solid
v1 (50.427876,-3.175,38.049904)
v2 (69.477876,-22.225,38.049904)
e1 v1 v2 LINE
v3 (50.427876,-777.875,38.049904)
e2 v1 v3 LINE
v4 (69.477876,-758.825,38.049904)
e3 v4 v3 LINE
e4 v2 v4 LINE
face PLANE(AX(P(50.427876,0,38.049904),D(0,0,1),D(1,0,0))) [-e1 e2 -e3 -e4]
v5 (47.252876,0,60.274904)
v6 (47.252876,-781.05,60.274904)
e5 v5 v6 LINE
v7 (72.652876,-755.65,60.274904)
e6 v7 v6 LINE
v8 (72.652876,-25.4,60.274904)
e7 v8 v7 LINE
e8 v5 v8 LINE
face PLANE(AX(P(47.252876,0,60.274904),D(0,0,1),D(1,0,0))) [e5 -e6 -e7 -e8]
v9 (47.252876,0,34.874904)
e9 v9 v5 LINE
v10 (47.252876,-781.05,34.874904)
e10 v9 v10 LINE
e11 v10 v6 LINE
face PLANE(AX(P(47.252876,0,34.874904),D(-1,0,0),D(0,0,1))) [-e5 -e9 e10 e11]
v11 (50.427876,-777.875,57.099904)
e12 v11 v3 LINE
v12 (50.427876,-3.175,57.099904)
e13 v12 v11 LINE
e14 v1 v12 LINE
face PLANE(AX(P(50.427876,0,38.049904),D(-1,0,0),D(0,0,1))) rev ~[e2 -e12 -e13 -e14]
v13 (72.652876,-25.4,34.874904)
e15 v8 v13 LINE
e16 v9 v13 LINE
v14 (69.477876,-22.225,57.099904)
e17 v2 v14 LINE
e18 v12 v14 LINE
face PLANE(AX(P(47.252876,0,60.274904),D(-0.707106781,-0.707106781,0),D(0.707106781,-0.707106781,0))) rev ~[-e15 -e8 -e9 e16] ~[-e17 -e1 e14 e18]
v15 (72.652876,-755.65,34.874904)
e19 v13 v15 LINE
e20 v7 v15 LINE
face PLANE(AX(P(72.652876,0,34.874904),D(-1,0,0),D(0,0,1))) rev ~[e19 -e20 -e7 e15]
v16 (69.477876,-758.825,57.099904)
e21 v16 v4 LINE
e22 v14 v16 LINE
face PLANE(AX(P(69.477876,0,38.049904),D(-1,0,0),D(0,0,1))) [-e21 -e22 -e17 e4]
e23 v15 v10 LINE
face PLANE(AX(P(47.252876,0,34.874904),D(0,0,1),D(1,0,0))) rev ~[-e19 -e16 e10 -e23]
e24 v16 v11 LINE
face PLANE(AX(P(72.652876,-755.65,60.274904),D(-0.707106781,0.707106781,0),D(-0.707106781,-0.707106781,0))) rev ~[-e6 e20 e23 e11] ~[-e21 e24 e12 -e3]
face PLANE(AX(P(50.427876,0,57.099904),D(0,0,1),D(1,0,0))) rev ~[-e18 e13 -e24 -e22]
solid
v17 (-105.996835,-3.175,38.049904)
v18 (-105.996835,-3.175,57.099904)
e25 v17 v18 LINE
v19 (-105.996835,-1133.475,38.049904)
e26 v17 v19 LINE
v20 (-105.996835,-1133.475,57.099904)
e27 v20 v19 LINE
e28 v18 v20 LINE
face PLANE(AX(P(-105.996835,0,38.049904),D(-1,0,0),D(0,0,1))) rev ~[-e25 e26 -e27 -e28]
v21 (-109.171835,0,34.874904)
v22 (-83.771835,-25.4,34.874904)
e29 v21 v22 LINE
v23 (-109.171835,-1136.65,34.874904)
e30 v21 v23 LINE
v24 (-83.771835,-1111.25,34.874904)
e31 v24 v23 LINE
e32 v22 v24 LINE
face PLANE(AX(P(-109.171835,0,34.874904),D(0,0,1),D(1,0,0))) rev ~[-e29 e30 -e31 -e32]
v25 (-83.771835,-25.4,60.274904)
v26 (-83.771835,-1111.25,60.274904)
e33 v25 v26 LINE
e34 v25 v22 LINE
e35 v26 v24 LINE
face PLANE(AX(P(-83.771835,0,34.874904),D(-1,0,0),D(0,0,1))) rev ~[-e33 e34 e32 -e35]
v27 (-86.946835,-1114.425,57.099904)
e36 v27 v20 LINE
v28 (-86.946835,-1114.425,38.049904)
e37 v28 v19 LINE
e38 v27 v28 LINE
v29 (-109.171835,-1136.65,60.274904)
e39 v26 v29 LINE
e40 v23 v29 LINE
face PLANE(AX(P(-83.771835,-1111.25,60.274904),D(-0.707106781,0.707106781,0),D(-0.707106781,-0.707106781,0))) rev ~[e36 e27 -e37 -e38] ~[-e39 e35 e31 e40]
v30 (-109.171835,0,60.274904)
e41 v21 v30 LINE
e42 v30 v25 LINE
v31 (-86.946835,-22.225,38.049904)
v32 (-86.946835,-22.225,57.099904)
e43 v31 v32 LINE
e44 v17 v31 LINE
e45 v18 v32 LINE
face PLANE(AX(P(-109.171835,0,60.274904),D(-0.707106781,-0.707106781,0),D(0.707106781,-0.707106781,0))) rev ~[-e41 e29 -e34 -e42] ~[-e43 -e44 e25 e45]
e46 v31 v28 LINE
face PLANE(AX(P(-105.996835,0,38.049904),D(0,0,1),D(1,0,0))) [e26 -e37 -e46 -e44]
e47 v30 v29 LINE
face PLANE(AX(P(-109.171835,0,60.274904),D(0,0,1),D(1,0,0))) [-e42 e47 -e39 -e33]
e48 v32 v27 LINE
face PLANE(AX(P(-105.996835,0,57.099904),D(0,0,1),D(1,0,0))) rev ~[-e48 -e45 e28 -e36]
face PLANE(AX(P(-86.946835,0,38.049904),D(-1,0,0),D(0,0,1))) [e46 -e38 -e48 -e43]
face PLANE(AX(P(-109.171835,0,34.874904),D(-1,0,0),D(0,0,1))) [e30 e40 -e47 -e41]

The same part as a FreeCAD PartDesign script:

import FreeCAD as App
import Part
import Sketcher
Q = App.Units.Quantity

doc = App.newDocument("Part")
body = doc.addObject("PartDesign::Body", "Body")

sketch1 = body.newObject("Sketcher::SketchObject", "Sketch")
sketch1.AttachmentSupport = (doc.getObject("XZ_Plane"), [""])
sketch1.MapMode = "FlatFace"
sketch1.addGeometry([
    Part.LineSegment(App.Vector(-109.171835, 60.274904, 0), App.Vector(-109.171835, 34.874904, 0)),
    Part.LineSegment(App.Vector(-109.171835, 34.874904, 0), App.Vector(-83.771835, 34.874904, 0)),
    Part.LineSegment(App.Vector(-83.771835, 34.874904, 0), App.Vector(-83.771835, 60.274904, 0)),
    Part.LineSegment(App.Vector(-83.771835, 60.274904, 0), App.Vector(-109.171835, 60.274904, 0)),
    Part.LineSegment(App.Vector(-86.946835, 38.049904, 0), App.Vector(-105.996835, 38.049904, 0)),
    Part.LineSegment(App.Vector(-105.996835, 38.049904, 0), App.Vector(-105.996835, 57.099904, 0)),
    Part.LineSegment(App.Vector(-105.996835, 57.099904, 0), App.Vector(-86.946835, 57.099904, 0)),
    Part.LineSegment(App.Vector(-86.946835, 57.099904, 0), App.Vector(-86.946835, 38.049904, 0)),
], False)
sketch1.addConstraint([
    Sketcher.Constraint("Coincident", 0, 2, 1, 1),
    Sketcher.Constraint("Coincident", 1, 2, 2, 1),
    Sketcher.Constraint("Coincident", 2, 2, 3, 1),
    Sketcher.Constraint("Coincident", 3, 2, 0, 1),
    Sketcher.Constraint("Coincident", 4, 2, 5, 1),
    Sketcher.Constraint("Coincident", 5, 2, 6, 1),
    Sketcher.Constraint("Coincident", 6, 2, 7, 1),
    Sketcher.Constraint("Coincident", 7, 2, 4, 1),
    Sketcher.Constraint("Vertical", 0),
    Sketcher.Constraint("Horizontal", 1),
    Sketcher.Constraint("Vertical", 2),
    Sketcher.Constraint("Horizontal", 3),
    Sketcher.Constraint("Horizontal", 4),
    Sketcher.Constraint("Vertical", 5),
    Sketcher.Constraint("Horizontal", 6),
    Sketcher.Constraint("Vertical", 7),
    Sketcher.Constraint("Equal", 3, 0),
    Sketcher.Constraint("Equal", 6, 5),
    Sketcher.Constraint("DistanceX", 1, 1, 1, 2, Q("1 in")),
    Sketcher.Constraint("DistanceX", 4, 2, 4, 1, Q("0.75 in")),
    Sketcher.Constraint("DistanceX", 0, 2, 4, 2, Q("0.125 in")),
    Sketcher.Constraint("DistanceY", 0, 2, 4, 2, Q("0.125 in")),
    Sketcher.Constraint("DistanceX", 0, 2, -1, 1, Q("109.171835 mm")),
    Sketcher.Constraint("DistanceY", -1, 1, 0, 2, Q("34.874904 mm")),
])
pad1 = body.newObject("PartDesign::Pad", "Pad")
pad1.Profile = sketch1
pad1.Length = Q("44.75 in")
body2 = doc.addObject("PartDesign::Body", "Body001")

sketch2 = body2.newObject("Sketcher::SketchObject", "Sketch001")
sketch2.AttachmentSupport = (doc.getObject("XZ_Plane001"), [""])
sketch2.MapMode = "FlatFace"
sketch2.addGeometry([
    Part.LineSegment(App.Vector(47.252876, 60.274904, 0), App.Vector(47.252876, 34.874904, 0)),
    Part.LineSegment(App.Vector(47.252876, 34.874904, 0), App.Vector(72.652876, 34.874904, 0)),
    Part.LineSegment(App.Vector(72.652876, 34.874904, 0), App.Vector(72.652876, 60.274904, 0)),
    Part.LineSegment(App.Vector(72.652876, 60.274904, 0), App.Vector(47.252876, 60.274904, 0)),
    Part.LineSegment(App.Vector(69.477876, 38.049904, 0), App.Vector(50.427876, 38.049904, 0)),
    Part.LineSegment(App.Vector(50.427876, 38.049904, 0), App.Vector(50.427876, 57.099904, 0)),
    Part.LineSegment(App.Vector(50.427876, 57.099904, 0), App.Vector(69.477876, 57.099904, 0)),
    Part.LineSegment(App.Vector(69.477876, 57.099904, 0), App.Vector(69.477876, 38.049904, 0)),
], False)
sketch2.addConstraint([
    Sketcher.Constraint("Coincident", 0, 2, 1, 1),
    Sketcher.Constraint("Coincident", 1, 2, 2, 1),
    Sketcher.Constraint("Coincident", 2, 2, 3, 1),
    Sketcher.Constraint("Coincident", 3, 2, 0, 1),
    Sketcher.Constraint("Coincident", 4, 2, 5, 1),
    Sketcher.Constraint("Coincident", 5, 2, 6, 1),
    Sketcher.Constraint("Coincident", 6, 2, 7, 1),
    Sketcher.Constraint("Coincident", 7, 2, 4, 1),
    Sketcher.Constraint("Vertical", 0),
    Sketcher.Constraint("Horizontal", 1),
    Sketcher.Constraint("Vertical", 2),
    Sketcher.Constraint("Horizontal", 3),
    Sketcher.Constraint("Horizontal", 4),
    Sketcher.Constraint("Vertical", 5),
    Sketcher.Constraint("Horizontal", 6),
    Sketcher.Constraint("Vertical", 7),
    Sketcher.Constraint("Equal", 3, 0),
    Sketcher.Constraint("Equal", 6, 5),
    Sketcher.Constraint("DistanceX", 1, 1, 1, 2, Q("1 in")),
    Sketcher.Constraint("DistanceX", 4, 2, 4, 1, Q("0.75 in")),
    Sketcher.Constraint("DistanceX", 0, 2, 4, 2, Q("0.125 in")),
    Sketcher.Constraint("DistanceY", 0, 2, 4, 2, Q("0.125 in")),
    Sketcher.Constraint("DistanceX", -1, 1, 0, 2, Q("47.252876 mm")),
    Sketcher.Constraint("DistanceY", -1, 1, 0, 2, Q("34.874904 mm")),
])
pad2 = body2.newObject("PartDesign::Pad", "Pad001")
pad2.Profile = sketch2
pad2.Length = Q("30.75 in")
body3 = doc.addObject("PartDesign::Body", "Body002")
body3.AllowCompound = True

sketch3 = body3.newObject("Sketcher::SketchObject", "Sketch002")
sketch3.AttachmentSupport = (doc.getObject("XY_Plane002"), [""])
sketch3.MapMode = "FlatFace"
sketch3.AttachmentOffset = App.Placement(App.Vector(0, 0, 60.274904), App.Rotation())
sketch3.addGeometry([
    Part.LineSegment(App.Vector(-83.771835, -1111.25, 0), App.Vector(-109.171835, -1136.65, 0)),
    Part.LineSegment(App.Vector(-109.171835, -1136.65, 0), App.Vector(-83.771835, -1136.65, 0)),
    Part.LineSegment(App.Vector(-83.771835, -1136.65, 0), App.Vector(-83.771835, -1111.25, 0)),
    Part.LineSegment(App.Vector(72.652876, -755.65, 0), App.Vector(47.252876, -781.05, 0)),
    Part.LineSegment(App.Vector(47.252876, -781.05, 0), App.Vector(72.652876, -781.05, 0)),
    Part.LineSegment(App.Vector(72.652876, -781.05, 0), App.Vector(72.652876, -755.65, 0)),
    Part.LineSegment(App.Vector(-83.771835, 0, 0), App.Vector(-109.171835, 0, 0)),
    Part.LineSegment(App.Vector(-109.171835, 0, 0), App.Vector(-83.771835, -25.4, 0)),
    Part.LineSegment(App.Vector(-83.771835, -25.4, 0), App.Vector(-83.771835, 0, 0)),
    Part.LineSegment(App.Vector(72.652876, 0, 0), App.Vector(47.252876, 0, 0)),
    Part.LineSegment(App.Vector(47.252876, 0, 0), App.Vector(72.652876, -25.4, 0)),
    Part.LineSegment(App.Vector(72.652876, -25.4, 0), App.Vector(72.652876, 0, 0)),
], False)
sketch3.addConstraint([
    Sketcher.Constraint("Coincident", 0, 2, 1, 1),
    Sketcher.Constraint("Coincident", 1, 2, 2, 1),
    Sketcher.Constraint("Coincident", 2, 2, 0, 1),
    Sketcher.Constraint("Coincident", 3, 2, 4, 1),
    Sketcher.Constraint("Coincident", 4, 2, 5, 1),
    Sketcher.Constraint("Coincident", 5, 2, 3, 1),
    Sketcher.Constraint("Coincident", 6, 2, 7, 1),
    Sketcher.Constraint("Coincident", 7, 2, 8, 1),
    Sketcher.Constraint("Coincident", 8, 2, 6, 1),
    Sketcher.Constraint("Coincident", 9, 2, 10, 1),
    Sketcher.Constraint("Coincident", 10, 2, 11, 1),
    Sketcher.Constraint("Coincident", 11, 2, 9, 1),
    Sketcher.Constraint("Horizontal", 1),
    Sketcher.Constraint("Vertical", 2),
    Sketcher.Constraint("Horizontal", 4),
    Sketcher.Constraint("Vertical", 5),
    Sketcher.Constraint("Horizontal", 6),
    Sketcher.Constraint("Vertical", 8),
    Sketcher.Constraint("Horizontal", 9),
    Sketcher.Constraint("Vertical", 11),
    Sketcher.Constraint("PointOnObject", 6, 2, -1),
    Sketcher.Constraint("PointOnObject", 9, 2, -1),
    Sketcher.Constraint("Parallel", 0, 3),
    Sketcher.Constraint("Perpendicular", 3, 7),
    Sketcher.Constraint("Parallel", 7, 10),
    Sketcher.Constraint("Horizontal", 7, 2, 10, 2),
    Sketcher.Constraint("Vertical", 0, 2, 6, 2),
    Sketcher.Constraint("Vertical", 2, 2, 7, 2),
    Sketcher.Constraint("Vertical", 3, 2, 9, 2),
    Sketcher.Constraint("Vertical", 5, 2, 10, 2),
    Sketcher.Constraint("Equal", 9, 2),
    Sketcher.Constraint("DistanceX", 1, 1, 1, 2, Q("1 in")),
    Sketcher.Constraint("DistanceY", 2, 2, 3, 2, Q("13 in")),
    Sketcher.Constraint("DistanceY", 0, 2, -1, 1, Q("44.75 in")),
    Sketcher.Constraint("DistanceX", 2, 2, 3, 2, Q("131.024711 mm")),
    Sketcher.Constraint("DistanceX", 0, 2, -1, 1, Q("109.171835 mm")),
])
pad3 = body3.newObject("PartDesign::Pad", "Pad002")
pad3.Profile = sketch3
pad3.Length = 25.401
pad3.Reversed = True
doc.recompute()

body4 = doc.addObject("PartDesign::Body", "Body003")
body4.BaseFeature = body3
boolean = body.newObject("PartDesign::Boolean", "Boolean")
boolean.Type = "Cut"
boolean.addObjects([body4])
doc.recompute()

boolean2 = body2.newObject("PartDesign::Boolean", "Boolean001")
boolean2.Type = "Cut"
boolean2.addObjects([body3])

doc.recompute()
